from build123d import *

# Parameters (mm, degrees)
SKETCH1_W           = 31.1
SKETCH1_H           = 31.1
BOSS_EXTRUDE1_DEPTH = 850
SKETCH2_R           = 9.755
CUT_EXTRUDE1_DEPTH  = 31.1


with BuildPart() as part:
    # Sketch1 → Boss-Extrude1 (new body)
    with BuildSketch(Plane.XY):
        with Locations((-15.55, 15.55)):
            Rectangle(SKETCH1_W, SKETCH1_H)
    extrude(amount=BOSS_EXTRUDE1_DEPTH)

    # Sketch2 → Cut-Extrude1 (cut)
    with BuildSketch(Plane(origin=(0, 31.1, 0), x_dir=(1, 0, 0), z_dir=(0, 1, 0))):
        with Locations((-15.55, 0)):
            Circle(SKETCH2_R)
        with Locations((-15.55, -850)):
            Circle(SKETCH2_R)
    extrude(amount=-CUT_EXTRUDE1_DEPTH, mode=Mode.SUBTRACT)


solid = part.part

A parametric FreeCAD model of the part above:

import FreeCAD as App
import Part
import Sketcher

V = App.Vector

doc = App.newDocument("Part")
body = doc.addObject("PartDesign::Body", "Body")

# Sketch on XY plane
sketch1 = body.newObject("Sketcher::SketchObject", "Sketch")
sketch1.AttachmentSupport = (doc.getObject("XY_Plane"), [""])
sketch1.MapMode = "FlatFace"
sketch1.addGeometry(Part.LineSegment(V(-31, 31, 0), V(-31, 0, 0)), False)
sketch1.addGeometry(Part.LineSegment(V(-31, 0, 0), V(0, 0, 0)), False)
sketch1.addGeometry(Part.LineSegment(V(0, 0, 0), V(0, 31, 0)), False)
sketch1.addGeometry(Part.LineSegment(V(0, 31, 0), V(-31, 31, 0)), False)
sketch1.addConstraint(Sketcher.Constraint("Coincident", 0, 2, 1, 1))
sketch1.addConstraint(Sketcher.Constraint("Coincident", 1, 2, 2, 1))
sketch1.addConstraint(Sketcher.Constraint("Coincident", 2, 2, 3, 1))
sketch1.addConstraint(Sketcher.Constraint("Coincident", 3, 2, 0, 1))
sketch1.addConstraint(Sketcher.Constraint("Vertical", 0))
sketch1.addConstraint(Sketcher.Constraint("Horizontal", 1))
sketch1.addConstraint(Sketcher.Constraint("Vertical", 2))
sketch1.addConstraint(Sketcher.Constraint("Horizontal", 3))
sketch1.addConstraint(Sketcher.Constraint("Coincident", 1, 2, -1, 1))
sketch1.addConstraint(Sketcher.Constraint("Equal", 3, 0))
sketch1.addConstraint(Sketcher.Constraint("DistanceX", 1, 1, 1, 2, 31.1))
pad1 = body.newObject("PartDesign::Pad", "Pad")
pad1.Profile = sketch1
pad1.Length = 850

# Sketch on XZ plane
sketch2 = body.newObject("Sketcher::SketchObject", "Sketch001")
sketch2.AttachmentSupport = (doc.getObject("XZ_Plane"), [""])
sketch2.MapMode = "FlatFace"
sketch2.AttachmentOffset = App.Placement(V(0, 0, -31.1), App.Rotation())
sketch2.addGeometry(Part.Circle(V(-16, 0, 0), V(0, 0, 1), 10), False)
sketch2.addGeometry(Part.Circle(V(-16, 850, 0), V(0, 0, 1), 10), False)
sketch2.addConstraint(Sketcher.Constraint("Equal", 0, 1))
sketch2.addConstraint(Sketcher.Constraint("PointOnObject", 0, 3, -1))
sketch2.addConstraint(Sketcher.Constraint("Vertical", 0, 3, 1, 3))
sketch2.addConstraint(Sketcher.Constraint("Diameter", 0, 19.51))
sketch2.addConstraint(Sketcher.Constraint("DistanceY", -1, 1, 1, 3, 850.0))
sketch2.addConstraint(Sketcher.Constraint("DistanceX", 0, 3, -1, 1, 15.55))
pocket1 = body.newObject("PartDesign::Pocket", "Pocket")
pocket1.Profile = sketch2
pocket1.Length = 31.1
pocket1.Reversed = True

doc.recompute()
